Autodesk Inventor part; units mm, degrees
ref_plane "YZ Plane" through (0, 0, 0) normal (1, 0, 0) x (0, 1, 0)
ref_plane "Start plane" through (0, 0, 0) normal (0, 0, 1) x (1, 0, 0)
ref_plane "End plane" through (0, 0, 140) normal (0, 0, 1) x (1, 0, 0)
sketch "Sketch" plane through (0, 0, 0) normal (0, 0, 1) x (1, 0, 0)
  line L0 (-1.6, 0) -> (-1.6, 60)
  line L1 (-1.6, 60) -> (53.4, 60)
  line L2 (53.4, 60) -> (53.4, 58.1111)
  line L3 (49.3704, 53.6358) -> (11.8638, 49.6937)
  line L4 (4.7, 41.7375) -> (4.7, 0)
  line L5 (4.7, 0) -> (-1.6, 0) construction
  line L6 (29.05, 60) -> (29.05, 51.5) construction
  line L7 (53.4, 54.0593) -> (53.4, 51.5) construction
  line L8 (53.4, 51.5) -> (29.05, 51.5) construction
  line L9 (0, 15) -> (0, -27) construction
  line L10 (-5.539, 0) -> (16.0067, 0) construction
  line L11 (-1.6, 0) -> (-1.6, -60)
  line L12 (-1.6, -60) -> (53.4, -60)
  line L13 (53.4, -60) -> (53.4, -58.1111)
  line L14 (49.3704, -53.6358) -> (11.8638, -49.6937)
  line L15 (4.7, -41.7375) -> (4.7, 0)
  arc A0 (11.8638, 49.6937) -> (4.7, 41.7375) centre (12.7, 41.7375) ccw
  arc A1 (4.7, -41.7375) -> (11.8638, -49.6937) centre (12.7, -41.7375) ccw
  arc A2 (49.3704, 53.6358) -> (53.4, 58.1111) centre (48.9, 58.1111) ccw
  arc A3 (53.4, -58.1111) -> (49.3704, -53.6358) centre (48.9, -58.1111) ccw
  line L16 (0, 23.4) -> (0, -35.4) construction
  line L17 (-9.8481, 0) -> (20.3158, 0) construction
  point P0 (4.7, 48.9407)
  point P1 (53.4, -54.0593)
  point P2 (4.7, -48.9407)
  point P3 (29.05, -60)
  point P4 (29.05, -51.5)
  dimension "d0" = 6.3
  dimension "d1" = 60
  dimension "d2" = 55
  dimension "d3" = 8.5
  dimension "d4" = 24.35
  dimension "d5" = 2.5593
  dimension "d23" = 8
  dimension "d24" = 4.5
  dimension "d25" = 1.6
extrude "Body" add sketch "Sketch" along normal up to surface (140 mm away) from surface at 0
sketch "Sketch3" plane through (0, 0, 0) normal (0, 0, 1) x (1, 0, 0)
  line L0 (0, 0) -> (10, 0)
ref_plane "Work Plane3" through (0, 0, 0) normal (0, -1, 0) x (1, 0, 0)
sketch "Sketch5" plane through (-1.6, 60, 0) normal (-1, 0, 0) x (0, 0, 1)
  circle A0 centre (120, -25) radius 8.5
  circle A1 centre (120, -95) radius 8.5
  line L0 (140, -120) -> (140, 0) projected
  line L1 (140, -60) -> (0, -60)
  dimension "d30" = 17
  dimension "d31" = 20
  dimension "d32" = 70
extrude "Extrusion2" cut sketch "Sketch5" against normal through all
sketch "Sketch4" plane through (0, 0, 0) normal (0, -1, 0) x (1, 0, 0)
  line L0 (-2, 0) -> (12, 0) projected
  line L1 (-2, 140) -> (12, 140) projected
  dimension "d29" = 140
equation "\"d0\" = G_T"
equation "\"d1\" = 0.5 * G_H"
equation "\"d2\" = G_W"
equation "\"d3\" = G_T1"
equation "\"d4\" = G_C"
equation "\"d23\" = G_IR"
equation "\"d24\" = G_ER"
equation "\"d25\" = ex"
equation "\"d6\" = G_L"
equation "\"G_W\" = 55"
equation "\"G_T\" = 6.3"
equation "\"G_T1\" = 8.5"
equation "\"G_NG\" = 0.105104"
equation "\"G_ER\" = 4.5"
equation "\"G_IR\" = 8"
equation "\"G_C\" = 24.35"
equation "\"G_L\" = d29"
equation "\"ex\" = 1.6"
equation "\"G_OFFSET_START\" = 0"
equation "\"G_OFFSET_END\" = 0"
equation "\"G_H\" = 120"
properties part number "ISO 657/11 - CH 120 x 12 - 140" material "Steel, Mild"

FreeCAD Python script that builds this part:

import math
import FreeCAD as App
import Part
import Sketcher
from FreeCAD import Vector
Q = App.Units.Quantity

doc = App.newDocument("Part")
body = doc.addObject("PartDesign::Body", "Body")

# Sketch on XY plane
sketch1 = doc.addObject("Sketcher::SketchObject", "Sketch")
body.addObject(sketch1)
sketch1.AttachmentSupport = (doc.XY_Plane, [""])
sketch1.MapMode = "FlatFace"
sketch1.addGeometry([
    Part.LineSegment(Vector(-1.6, 60, 0), Vector(-1.6, -60, 0)),  # 0
    Part.LineSegment(Vector(-1.6, -60, 0), Vector(53.4, -60, 0)),  # 1
    Part.LineSegment(Vector(53.4, -60, 0), Vector(53.4, -58.1, 0)),  # 2
    Part.ArcOfCircle(Part.Circle(Vector(48.9, -58.1, 0), Vector(0, 0, 1), 4.5), math.radians(0), math.radians(84)),  # 3
    Part.LineSegment(Vector(49.4, -53.6, 0), Vector(11.9, -49.7, 0)),  # 4
    Part.ArcOfCircle(Part.Circle(Vector(12.7, -41.7, 0), Vector(0, 0, 1), 8), math.radians(180), math.radians(264)),  # 5
    Part.LineSegment(Vector(4.7, -41.7, 0), Vector(4.7, 41.7, 0)),  # 6
    Part.ArcOfCircle(Part.Circle(Vector(12.7, 41.7, 0), Vector(0, 0, 1), 8), math.radians(96), math.radians(180)),  # 7
    Part.LineSegment(Vector(11.9, 49.7, 0), Vector(49.4, 53.6, 0)),  # 8
    Part.ArcOfCircle(Part.Circle(Vector(48.9, 58.1, 0), Vector(0, 0, 1), 4.5), math.radians(-84), math.radians(0)),  # 9
    Part.LineSegment(Vector(53.4, 58.1, 0), Vector(53.4, 60, 0)),  # 10
    Part.LineSegment(Vector(53.4, 60, 0), Vector(-1.6, 60, 0)),  # 11
], False)
sketch1.addConstraint([
    Sketcher.Constraint("Coincident", 0, 2, 1, 1),
    Sketcher.Constraint("Coincident", 1, 2, 2, 1),
    Sketcher.Constraint("Tangent", 2, 2, 3, 1),
    Sketcher.Constraint("Tangent", 3, 2, 4, 1),
    Sketcher.Constraint("Tangent", 4, 2, 5, 2),
    Sketcher.Constraint("Tangent", 5, 1, 6, 1),
    Sketcher.Constraint("Tangent", 6, 2, 7, 2),
    Sketcher.Constraint("Tangent", 7, 1, 8, 1),
    Sketcher.Constraint("Tangent", 8, 2, 9, 1),
    Sketcher.Constraint("Tangent", 9, 2, 10, 1),
    Sketcher.Constraint("Coincident", 10, 2, 11, 1),
    Sketcher.Constraint("Coincident", 11, 2, 0, 1),
    Sketcher.Constraint("Vertical", 0),
    Sketcher.Constraint("Horizontal", 1),
    Sketcher.Constraint("Vertical", 2),
    Sketcher.Constraint("Vertical", 6),
    Sketcher.Constraint("Vertical", 10),
    Sketcher.Constraint("Horizontal", 11),
    Sketcher.Constraint("Equal", 5, 7),
    Sketcher.Constraint("Equal", 3, 9),
    Sketcher.Constraint("Symmetric", 3, 3, 9, 3, -1),
    Sketcher.Constraint("Vertical", 4, 2, 7, 1),
    Sketcher.Constraint("Equal", 2, 10),
    Sketcher.Constraint("Radius", 5, Q("8 mm")),
    Sketcher.Constraint("Radius", 3, Q("4.5 mm")),
    Sketcher.Constraint("DistanceX", 1, 1, 1, 2, Q("55 mm")),
    Sketcher.Constraint("DistanceY", 0, 2, -1, 1, Q("60 mm")),
    Sketcher.Constraint("DistanceX", 0, 2, -1, 1, Q("1.6 mm")),
    Sketcher.Constraint("DistanceX", 0, 2, 5, 1, Q("6.3 mm")),
    Sketcher.Constraint("Angle", 4, Q("174 deg")),
    Sketcher.Constraint("DistanceY", 2, 1, 2, 2, Q("1.889 mm")),
])
pad1 = doc.addObject("PartDesign::Pad", "Pad")
body.addObject(pad1)
pad1.Profile = sketch1
pad1.Length = 140

# Sketch on YZ plane
sketch2 = doc.addObject("Sketcher::SketchObject", "Sketch001")
body.addObject(sketch2)
sketch2.AttachmentSupport = (doc.YZ_Plane, [""])
sketch2.MapMode = "FlatFace"
sketch2.AttachmentOffset = App.Placement(Vector(0, 0, -1.6), App.Rotation())
sketch2.addGeometry([
    Part.Circle(Vector(35, 120, 0), Vector(0, 0, 1), 8),
    Part.Circle(Vector(-35, 120, 0), Vector(0, 0, 1), 8),
], False)
sketch2.addConstraint([
    Sketcher.Constraint("Equal", 0, 1),
    Sketcher.Constraint("Symmetric", 0, 3, 1, 3, -2),
    Sketcher.Constraint("Diameter", 0, Q("17 mm")),
    Sketcher.Constraint("DistanceX", 1, 3, 0, 3, Q("70 mm")),
    Sketcher.Constraint("DistanceY", -1, 1, 0, 3, Q("120 mm")),
])
pocket1 = doc.addObject("PartDesign::Pocket", "Pocket")
body.addObject(pocket1)
pocket1.Profile = sketch2
pocket1.Type = "ThroughAll"
pocket1.Reversed = True

doc.recompute()
